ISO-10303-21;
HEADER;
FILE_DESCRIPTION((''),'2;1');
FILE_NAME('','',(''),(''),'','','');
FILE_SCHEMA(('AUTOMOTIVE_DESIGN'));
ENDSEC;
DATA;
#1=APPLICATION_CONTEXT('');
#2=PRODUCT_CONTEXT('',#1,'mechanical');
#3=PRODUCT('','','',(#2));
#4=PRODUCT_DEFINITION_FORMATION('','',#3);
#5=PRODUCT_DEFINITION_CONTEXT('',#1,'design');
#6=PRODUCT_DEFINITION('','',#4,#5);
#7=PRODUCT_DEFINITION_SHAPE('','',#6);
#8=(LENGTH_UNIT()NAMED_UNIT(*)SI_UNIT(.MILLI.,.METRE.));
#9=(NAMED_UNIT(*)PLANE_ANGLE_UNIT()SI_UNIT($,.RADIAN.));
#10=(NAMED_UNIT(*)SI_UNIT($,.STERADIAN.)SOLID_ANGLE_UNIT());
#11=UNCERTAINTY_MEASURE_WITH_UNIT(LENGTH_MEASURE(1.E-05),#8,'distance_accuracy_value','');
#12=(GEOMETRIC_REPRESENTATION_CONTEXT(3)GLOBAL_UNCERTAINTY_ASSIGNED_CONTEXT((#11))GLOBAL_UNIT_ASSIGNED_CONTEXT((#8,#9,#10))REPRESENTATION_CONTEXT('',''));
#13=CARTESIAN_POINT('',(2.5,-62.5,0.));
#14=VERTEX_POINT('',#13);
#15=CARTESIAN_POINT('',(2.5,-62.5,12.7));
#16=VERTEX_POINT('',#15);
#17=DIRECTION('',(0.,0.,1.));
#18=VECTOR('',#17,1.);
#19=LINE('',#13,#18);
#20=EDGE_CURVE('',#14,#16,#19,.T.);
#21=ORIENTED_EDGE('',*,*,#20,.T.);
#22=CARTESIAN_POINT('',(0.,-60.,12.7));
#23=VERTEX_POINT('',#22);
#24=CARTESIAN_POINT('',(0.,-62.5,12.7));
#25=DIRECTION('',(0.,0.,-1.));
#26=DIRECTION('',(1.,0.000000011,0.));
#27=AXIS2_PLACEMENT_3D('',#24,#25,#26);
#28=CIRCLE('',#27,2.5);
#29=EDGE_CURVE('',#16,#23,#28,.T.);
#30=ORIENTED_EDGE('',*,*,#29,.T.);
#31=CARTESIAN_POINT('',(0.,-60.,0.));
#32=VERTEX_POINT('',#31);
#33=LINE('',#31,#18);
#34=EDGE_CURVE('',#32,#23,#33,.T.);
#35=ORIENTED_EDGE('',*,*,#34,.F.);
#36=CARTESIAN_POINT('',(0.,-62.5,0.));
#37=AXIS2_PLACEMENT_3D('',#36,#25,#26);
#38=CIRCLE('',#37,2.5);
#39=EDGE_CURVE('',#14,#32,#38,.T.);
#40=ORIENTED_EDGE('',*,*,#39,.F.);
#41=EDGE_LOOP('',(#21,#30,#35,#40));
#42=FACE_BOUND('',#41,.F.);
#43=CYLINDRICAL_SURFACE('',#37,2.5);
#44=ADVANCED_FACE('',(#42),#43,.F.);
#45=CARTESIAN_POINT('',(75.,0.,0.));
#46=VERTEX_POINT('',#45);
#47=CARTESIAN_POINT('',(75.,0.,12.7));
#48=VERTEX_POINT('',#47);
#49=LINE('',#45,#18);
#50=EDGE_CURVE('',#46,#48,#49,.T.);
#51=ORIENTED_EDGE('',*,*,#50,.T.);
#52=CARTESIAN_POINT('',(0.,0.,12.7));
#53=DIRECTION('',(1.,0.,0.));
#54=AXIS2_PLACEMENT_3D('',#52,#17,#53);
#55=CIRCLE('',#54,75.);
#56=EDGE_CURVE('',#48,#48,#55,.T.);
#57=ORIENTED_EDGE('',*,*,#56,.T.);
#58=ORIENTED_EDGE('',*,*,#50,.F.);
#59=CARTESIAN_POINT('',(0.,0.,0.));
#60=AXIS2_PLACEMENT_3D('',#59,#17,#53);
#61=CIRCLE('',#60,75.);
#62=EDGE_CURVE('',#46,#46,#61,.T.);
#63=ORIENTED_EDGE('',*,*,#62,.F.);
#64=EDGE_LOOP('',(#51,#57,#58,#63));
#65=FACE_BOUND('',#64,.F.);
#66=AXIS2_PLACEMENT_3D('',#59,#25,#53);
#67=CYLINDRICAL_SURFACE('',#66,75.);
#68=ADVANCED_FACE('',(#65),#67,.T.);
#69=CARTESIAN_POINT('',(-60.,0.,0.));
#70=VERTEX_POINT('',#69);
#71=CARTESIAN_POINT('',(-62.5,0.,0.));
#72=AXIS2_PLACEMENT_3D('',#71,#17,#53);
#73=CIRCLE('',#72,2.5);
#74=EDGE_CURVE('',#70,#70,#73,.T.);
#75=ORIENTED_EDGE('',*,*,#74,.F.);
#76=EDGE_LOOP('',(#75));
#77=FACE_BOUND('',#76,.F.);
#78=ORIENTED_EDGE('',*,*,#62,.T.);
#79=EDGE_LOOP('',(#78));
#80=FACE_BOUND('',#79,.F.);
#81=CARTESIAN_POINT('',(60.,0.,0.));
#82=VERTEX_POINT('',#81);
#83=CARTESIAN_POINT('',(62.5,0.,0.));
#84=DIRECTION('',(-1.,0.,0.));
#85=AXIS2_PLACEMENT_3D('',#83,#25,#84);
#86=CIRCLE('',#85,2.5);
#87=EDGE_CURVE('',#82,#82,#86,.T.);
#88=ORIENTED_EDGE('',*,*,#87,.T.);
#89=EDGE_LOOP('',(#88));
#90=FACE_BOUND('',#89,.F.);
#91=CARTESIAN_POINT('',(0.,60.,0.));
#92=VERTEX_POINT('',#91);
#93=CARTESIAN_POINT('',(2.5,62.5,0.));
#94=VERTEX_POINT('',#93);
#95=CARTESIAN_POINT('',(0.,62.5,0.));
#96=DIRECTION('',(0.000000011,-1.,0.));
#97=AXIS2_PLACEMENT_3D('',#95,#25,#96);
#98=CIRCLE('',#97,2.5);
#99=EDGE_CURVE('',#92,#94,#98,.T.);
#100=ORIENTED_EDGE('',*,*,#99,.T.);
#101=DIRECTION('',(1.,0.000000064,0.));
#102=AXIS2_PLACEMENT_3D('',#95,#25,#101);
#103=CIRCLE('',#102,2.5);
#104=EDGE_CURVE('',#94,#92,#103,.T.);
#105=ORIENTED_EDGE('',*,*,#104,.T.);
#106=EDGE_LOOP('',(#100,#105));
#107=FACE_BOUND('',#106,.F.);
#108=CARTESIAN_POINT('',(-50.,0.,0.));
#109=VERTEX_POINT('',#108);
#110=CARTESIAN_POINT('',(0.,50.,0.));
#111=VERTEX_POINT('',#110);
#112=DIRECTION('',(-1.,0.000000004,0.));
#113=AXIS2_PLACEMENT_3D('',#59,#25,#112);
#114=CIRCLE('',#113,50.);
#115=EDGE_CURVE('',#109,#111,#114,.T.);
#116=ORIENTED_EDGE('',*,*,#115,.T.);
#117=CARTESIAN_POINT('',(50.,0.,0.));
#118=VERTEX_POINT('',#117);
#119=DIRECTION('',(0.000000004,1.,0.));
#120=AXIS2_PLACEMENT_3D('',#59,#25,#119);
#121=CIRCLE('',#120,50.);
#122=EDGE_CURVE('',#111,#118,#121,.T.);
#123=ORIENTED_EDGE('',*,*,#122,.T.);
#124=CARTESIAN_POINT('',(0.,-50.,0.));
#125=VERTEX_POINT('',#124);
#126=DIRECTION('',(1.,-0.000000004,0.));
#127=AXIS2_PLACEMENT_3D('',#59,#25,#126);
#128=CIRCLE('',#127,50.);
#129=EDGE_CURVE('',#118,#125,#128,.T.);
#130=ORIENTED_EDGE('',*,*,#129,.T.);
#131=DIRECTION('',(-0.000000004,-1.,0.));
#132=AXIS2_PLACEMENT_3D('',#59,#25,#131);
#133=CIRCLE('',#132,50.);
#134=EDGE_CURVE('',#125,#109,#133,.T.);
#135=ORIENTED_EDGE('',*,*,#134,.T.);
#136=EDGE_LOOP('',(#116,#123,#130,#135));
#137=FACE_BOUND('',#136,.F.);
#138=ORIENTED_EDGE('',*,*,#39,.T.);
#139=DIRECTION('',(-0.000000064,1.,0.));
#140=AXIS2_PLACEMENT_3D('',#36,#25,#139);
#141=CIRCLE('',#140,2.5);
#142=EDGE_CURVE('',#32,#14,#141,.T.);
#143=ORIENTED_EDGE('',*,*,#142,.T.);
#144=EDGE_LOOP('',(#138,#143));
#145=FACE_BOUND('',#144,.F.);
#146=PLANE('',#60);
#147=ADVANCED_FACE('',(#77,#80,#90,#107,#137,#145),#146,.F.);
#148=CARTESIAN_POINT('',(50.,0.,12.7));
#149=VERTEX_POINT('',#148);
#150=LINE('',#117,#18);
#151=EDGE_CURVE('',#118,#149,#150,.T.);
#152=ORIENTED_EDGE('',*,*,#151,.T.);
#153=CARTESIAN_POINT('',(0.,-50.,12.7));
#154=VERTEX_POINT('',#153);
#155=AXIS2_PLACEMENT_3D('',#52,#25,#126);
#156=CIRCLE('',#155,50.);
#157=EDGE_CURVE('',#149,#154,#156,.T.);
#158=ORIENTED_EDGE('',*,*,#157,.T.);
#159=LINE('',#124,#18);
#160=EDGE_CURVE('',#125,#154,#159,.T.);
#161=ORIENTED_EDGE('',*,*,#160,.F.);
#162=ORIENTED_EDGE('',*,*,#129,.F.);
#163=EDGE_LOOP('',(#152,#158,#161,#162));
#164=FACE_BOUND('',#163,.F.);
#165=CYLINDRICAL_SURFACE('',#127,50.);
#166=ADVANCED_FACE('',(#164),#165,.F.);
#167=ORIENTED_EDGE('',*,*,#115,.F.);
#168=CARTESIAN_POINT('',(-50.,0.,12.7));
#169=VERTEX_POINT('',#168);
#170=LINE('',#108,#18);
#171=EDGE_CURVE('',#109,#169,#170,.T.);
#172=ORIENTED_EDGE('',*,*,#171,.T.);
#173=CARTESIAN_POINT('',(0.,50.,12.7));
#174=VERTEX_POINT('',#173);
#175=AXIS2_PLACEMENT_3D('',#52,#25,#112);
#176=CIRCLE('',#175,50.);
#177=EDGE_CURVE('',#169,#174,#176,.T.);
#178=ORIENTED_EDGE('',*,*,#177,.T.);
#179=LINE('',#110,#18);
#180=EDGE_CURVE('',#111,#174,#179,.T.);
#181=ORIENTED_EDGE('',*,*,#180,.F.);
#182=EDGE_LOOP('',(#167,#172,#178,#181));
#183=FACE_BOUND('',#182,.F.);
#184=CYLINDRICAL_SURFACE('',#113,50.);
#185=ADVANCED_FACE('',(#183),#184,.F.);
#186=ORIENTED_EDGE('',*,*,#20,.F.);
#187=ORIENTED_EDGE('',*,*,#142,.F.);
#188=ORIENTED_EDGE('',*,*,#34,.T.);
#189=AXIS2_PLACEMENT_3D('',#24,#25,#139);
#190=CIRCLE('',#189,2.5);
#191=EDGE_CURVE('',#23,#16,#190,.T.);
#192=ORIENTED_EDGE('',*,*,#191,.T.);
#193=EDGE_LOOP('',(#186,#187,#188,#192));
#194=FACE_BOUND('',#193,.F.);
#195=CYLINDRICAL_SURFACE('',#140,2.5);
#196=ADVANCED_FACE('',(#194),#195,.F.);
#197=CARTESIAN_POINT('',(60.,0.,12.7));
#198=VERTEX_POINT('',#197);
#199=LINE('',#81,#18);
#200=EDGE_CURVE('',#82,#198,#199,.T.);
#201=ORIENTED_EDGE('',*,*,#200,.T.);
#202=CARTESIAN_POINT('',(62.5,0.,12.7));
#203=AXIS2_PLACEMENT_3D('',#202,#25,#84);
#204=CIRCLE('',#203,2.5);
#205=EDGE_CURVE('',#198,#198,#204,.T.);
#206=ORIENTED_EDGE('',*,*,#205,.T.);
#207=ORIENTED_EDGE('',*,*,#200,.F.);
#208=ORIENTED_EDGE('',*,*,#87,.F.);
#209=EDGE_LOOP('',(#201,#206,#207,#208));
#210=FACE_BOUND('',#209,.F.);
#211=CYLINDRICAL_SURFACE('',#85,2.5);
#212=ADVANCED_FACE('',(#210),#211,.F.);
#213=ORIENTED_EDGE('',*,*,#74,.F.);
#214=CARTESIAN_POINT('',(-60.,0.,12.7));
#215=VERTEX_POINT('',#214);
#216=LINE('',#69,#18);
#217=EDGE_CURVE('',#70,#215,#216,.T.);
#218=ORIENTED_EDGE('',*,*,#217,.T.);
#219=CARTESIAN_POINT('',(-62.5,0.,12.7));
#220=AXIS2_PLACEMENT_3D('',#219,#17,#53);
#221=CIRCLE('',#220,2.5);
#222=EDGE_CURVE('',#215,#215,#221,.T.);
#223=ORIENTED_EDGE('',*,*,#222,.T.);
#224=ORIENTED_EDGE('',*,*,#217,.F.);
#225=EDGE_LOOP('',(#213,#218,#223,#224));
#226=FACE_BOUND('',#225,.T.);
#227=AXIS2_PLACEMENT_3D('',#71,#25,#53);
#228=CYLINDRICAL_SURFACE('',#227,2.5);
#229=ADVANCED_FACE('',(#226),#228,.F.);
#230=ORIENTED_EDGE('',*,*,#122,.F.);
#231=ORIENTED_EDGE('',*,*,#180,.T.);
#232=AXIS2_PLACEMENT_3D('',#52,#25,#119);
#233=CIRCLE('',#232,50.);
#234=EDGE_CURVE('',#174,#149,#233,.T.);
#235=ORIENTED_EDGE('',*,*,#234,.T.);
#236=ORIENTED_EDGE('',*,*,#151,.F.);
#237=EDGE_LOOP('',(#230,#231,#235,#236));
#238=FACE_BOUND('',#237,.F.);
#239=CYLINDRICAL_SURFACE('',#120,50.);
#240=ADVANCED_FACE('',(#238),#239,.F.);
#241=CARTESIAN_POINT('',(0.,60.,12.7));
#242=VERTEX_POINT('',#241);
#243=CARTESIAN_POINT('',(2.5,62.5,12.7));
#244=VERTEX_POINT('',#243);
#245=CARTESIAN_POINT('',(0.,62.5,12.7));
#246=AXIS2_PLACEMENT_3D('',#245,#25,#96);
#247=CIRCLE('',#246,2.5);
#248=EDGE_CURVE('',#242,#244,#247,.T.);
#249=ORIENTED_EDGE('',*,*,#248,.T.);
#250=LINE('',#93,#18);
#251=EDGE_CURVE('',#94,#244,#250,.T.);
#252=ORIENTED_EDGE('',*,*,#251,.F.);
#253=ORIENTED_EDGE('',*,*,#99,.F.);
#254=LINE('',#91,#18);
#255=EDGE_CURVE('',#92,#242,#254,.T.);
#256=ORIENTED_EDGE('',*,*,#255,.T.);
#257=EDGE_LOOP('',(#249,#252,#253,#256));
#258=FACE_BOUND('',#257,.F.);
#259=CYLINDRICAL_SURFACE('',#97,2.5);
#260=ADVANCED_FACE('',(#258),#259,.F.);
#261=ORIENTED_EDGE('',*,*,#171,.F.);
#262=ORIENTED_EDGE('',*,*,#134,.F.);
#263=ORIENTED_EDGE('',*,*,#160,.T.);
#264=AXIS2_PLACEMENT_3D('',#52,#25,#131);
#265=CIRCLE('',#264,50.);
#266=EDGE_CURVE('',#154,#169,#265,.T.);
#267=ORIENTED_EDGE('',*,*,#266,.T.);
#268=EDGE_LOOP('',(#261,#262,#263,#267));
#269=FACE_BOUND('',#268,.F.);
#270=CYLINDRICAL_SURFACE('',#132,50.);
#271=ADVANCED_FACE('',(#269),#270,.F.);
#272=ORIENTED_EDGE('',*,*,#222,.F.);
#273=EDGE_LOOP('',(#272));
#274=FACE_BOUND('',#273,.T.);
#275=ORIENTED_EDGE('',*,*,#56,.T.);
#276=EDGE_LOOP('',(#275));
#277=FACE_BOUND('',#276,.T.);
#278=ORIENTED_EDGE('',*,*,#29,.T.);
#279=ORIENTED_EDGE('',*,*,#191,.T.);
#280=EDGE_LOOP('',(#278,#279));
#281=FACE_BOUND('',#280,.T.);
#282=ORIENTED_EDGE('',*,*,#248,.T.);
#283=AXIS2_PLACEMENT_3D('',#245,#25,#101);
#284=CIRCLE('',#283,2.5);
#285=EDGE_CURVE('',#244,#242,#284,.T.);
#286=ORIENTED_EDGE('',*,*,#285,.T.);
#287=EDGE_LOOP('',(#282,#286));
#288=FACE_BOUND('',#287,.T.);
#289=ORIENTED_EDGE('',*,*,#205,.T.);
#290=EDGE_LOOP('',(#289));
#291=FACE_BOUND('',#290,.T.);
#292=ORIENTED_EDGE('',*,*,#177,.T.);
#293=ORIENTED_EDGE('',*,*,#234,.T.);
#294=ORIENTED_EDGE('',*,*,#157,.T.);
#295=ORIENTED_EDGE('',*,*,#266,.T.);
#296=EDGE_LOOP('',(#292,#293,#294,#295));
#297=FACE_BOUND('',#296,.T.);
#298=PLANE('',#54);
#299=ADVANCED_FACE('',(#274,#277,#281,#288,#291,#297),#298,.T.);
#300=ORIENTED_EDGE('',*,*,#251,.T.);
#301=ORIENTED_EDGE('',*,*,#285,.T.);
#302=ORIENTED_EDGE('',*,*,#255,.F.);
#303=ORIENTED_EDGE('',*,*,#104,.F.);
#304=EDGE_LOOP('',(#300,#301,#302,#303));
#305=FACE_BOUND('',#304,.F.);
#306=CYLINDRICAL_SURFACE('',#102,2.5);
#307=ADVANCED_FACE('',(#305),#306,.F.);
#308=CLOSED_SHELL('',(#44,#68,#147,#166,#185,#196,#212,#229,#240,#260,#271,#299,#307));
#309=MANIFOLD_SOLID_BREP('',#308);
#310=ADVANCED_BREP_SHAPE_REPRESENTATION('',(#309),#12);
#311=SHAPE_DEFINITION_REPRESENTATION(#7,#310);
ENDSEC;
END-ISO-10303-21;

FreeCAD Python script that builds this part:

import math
import FreeCAD as App
import Part
import Sketcher
from FreeCAD import Vector
Q = App.Units.Quantity

doc = App.newDocument("Part")
body = doc.addObject("PartDesign::Body", "Body")

sketch1 = doc.addObject("Sketcher::SketchObject", "Sketch")
body.addObject(sketch1)
sketch1.AttachmentSupport = (doc.XY_Plane, [""])
sketch1.MapMode = "FlatFace"
sketch1.addGeometry(Part.Circle(Vector(0, 0, 0), Vector(0, 0, 1), 75), False)
sketch1.addGeometry(Part.ArcOfCircle(Part.Circle(Vector(0, -62.5, 0), Vector(0, 0, 1), 2.5), math.radians(0), math.radians(90)), False)
sketch1.addGeometry(Part.ArcOfCircle(Part.Circle(Vector(0, -62.5, 0), Vector(0, 0, 1), 2.5), math.radians(90), math.radians(360)), False)
sketch1.addGeometry(Part.Circle(Vector(-62.5, 0, 0), Vector(0, 0, 1), 2.5), False)
sketch1.addGeometry(Part.ArcOfCircle(Part.Circle(Vector(0, 62.5, 0), Vector(0, 0, 1), 2.5), math.radians(0), math.radians(270)), False)
sketch1.addGeometry(Part.ArcOfCircle(Part.Circle(Vector(0, 62.5, 0), Vector(0, 0, 1), 2.5), math.radians(-90), math.radians(0)), False)
sketch1.addGeometry(Part.ArcOfCircle(Part.Circle(Vector(0, 0, 0), Vector(0, 0, 1), 50), math.radians(90), math.radians(180)), False)
sketch1.addGeometry(Part.ArcOfCircle(Part.Circle(Vector(0, 0, 0), Vector(0, 0, 1), 50), math.radians(0), math.radians(90)), False)
sketch1.addGeometry(Part.ArcOfCircle(Part.Circle(Vector(0, 0, 0), Vector(0, 0, 1), 50), math.radians(-90), math.radians(0)), False)
sketch1.addGeometry(Part.ArcOfCircle(Part.Circle(Vector(0, 0, 0), Vector(0, 0, 1), 50), math.radians(-180), math.radians(-90)), False)
sketch1.addGeometry(Part.Circle(Vector(62.5, 0, 0), Vector(0, 0, 1), 2.5), False)
sketch1.addConstraint(Sketcher.Constraint("Tangent", 1, 1, 2, 2))
sketch1.addConstraint(Sketcher.Constraint("Coincident", 2, 1, 1, 2))
sketch1.addConstraint(Sketcher.Constraint("Tangent", 4, 1, 5, 2))
sketch1.addConstraint(Sketcher.Constraint("Coincident", 5, 1, 4, 2))
sketch1.addConstraint(Sketcher.Constraint("Tangent", 6, 1, 7, 2))
sketch1.addConstraint(Sketcher.Constraint("Tangent", 7, 1, 8, 2))
sketch1.addConstraint(Sketcher.Constraint("Tangent", 8, 1, 9, 2))
sketch1.addConstraint(Sketcher.Constraint("Tangent", 9, 1, 6, 2))
sketch1.addConstraint(Sketcher.Constraint("Coincident", 0, 3, -1, 1))
sketch1.addConstraint(Sketcher.Constraint("Coincident", 6, 3, -1, 1))
sketch1.addConstraint(Sketcher.Constraint("Equal", 2, 3))
sketch1.addConstraint(Sketcher.Constraint("Equal", 3, 4))
sketch1.addConstraint(Sketcher.Constraint("Equal", 6, 7))
sketch1.addConstraint(Sketcher.Constraint("Equal", 5, 10))
sketch1.addConstraint(Sketcher.Constraint("Symmetric", 1, 3, 4, 3, -1, 1))
sketch1.addConstraint(Sketcher.Constraint("Symmetric", 3, 3, 10, 3, -1, 1))
sketch1.addConstraint(Sketcher.Constraint("Symmetric", 1, 1, 4, 1, -1))
sketch1.addConstraint(Sketcher.Constraint("PointOnObject", 3, 3, -1))
sketch1.addConstraint(Sketcher.Constraint("PointOnObject", 2, 1, -2))
sketch1.addConstraint(Sketcher.Constraint("PointOnObject", 5, 1, -2))
sketch1.addConstraint(Sketcher.Constraint("PointOnObject", 6, 1, -2))
sketch1.addConstraint(Sketcher.Constraint("PointOnObject", 7, 1, -1))
sketch1.addConstraint(Sketcher.Constraint("PointOnObject", 8, 1, -2))
sketch1.addConstraint(Sketcher.Constraint("PointOnObject", 9, 1, -1))
sketch1.addConstraint(Sketcher.Constraint("Horizontal", 2, 3, 1, 1))
sketch1.addConstraint(Sketcher.Constraint("Diameter", 0, Q("150 mm")))
sketch1.addConstraint(Sketcher.Constraint("Diameter", 3, Q("5 mm")))
sketch1.addConstraint(Sketcher.Constraint("Radius", 6, Q("50 mm")))
sketch1.addConstraint(Sketcher.Constraint("DistanceY", 2, 1, -1, 1, Q("60 mm")))
sketch1.addConstraint(Sketcher.Constraint("DistanceX", 3, 3, -1, 1, Q("62.5 mm")))
pad1 = doc.addObject("PartDesign::Pad", "Pad")
body.addObject(pad1)
pad1.Profile = sketch1
pad1.Length = 12.7

doc.recompute()
